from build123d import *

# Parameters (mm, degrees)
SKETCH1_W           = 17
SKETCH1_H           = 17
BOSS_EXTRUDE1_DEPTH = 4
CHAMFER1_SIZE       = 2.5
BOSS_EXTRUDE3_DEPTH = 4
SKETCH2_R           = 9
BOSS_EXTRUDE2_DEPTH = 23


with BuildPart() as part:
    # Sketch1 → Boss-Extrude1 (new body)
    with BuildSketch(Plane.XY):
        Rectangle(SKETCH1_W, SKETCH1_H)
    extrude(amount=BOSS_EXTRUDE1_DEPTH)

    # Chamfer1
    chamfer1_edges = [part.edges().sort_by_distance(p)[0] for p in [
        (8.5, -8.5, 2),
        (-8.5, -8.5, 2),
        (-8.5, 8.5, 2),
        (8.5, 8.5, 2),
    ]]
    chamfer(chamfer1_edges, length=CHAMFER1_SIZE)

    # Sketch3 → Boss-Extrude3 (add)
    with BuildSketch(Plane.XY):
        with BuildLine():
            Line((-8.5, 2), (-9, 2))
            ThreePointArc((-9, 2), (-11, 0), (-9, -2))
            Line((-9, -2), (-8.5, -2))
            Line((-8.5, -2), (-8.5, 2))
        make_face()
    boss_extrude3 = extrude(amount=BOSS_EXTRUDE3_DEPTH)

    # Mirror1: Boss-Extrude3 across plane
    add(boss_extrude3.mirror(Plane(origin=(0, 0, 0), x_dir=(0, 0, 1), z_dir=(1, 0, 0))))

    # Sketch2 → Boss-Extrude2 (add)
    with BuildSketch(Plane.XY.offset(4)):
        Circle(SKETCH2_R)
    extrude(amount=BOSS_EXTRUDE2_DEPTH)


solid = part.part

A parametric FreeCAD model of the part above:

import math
import FreeCAD as App
import Part
import Sketcher
from FreeCAD import Vector
Q = App.Units.Quantity


def edges_at(feature, points):
    """Names of the edges that pass closest to the given points."""
    edges = feature.Shape.Edges
    near = lambda p: min(range(len(edges)), key=lambda i: edges[i].distToShape(Part.Vertex(*p))[0])
    return sorted({f"Edge{near(p) + 1}" for p in points})

doc = App.newDocument("Part")
params = doc.addObject("Spreadsheet::Sheet", "Params")
for row, (alias, value) in enumerate([
    ("sketch1_width", "17 mm"),
    ("pad1_length", "4 mm"),
    ("chamfer_size", "2.5 mm"),
    ("sketch2_radius", "2 mm"),
    ("sketch2_width", "0.5 mm"),
    ("pad2_length", "4 mm"),
    ("sketch3_diameter", "18 mm"),
    ("pad3_length", "23 mm"),
], start=1):
    params.set(f"A{row}", alias)
    params.set(f"B{row}", "=" + value)
    params.setAlias(f"B{row}", alias)

body = doc.addObject("PartDesign::Body", "Body")

sketch1 = doc.addObject("Sketcher::SketchObject", "Sketch")
body.addObject(sketch1)
sketch1.AttachmentSupport = (doc.XY_Plane, [""])
sketch1.MapMode = "FlatFace"
sketch1.addGeometry(Part.LineSegment(Vector(-8, 8, 0), Vector(-8, -8, 0)), False)
sketch1.addGeometry(Part.LineSegment(Vector(-8, -8, 0), Vector(8, -8, 0)), False)
sketch1.addGeometry(Part.LineSegment(Vector(8, -8, 0), Vector(8, 8, 0)), False)
sketch1.addGeometry(Part.LineSegment(Vector(8, 8, 0), Vector(-8, 8, 0)), False)
sketch1.addConstraint(Sketcher.Constraint("Coincident", 0, 2, 1, 1))
sketch1.addConstraint(Sketcher.Constraint("Coincident", 1, 2, 2, 1))
sketch1.addConstraint(Sketcher.Constraint("Coincident", 2, 2, 3, 1))
sketch1.addConstraint(Sketcher.Constraint("Coincident", 3, 2, 0, 1))
sketch1.addConstraint(Sketcher.Constraint("Vertical", 0))
sketch1.addConstraint(Sketcher.Constraint("Horizontal", 1))
sketch1.addConstraint(Sketcher.Constraint("Vertical", 2))
sketch1.addConstraint(Sketcher.Constraint("Horizontal", 3))
sketch1.addConstraint(Sketcher.Constraint("Symmetric", 0, 2, 2, 2, -1, 1))
sketch1.addConstraint(Sketcher.Constraint("Equal", 3, 0))
sketch1.addConstraint(Sketcher.Constraint("DistanceX", 1, 1, 1, 2, Q("17 mm")))
sketch1.setExpression("Constraints[10]", "Params.sketch1_width")
pad1 = doc.addObject("PartDesign::Pad", "Pad")
body.addObject(pad1)
pad1.Profile = sketch1
pad1.setExpression("Length", "Params.pad1_length")
doc.recompute()

chamfer = doc.addObject("PartDesign::Chamfer", "Chamfer")
body.addObject(chamfer)
chamfer.Base = (pad1, edges_at(pad1, [
    (8.5, -8.5, 2),
    (-8.5, -8.5, 2),
    (-8.5, 8.5, 2),
    (8.5, 8.5, 2),
]))
chamfer.setExpression("Size", "Params.chamfer_size")

sketch2 = doc.addObject("Sketcher::SketchObject", "Sketch001")
body.addObject(sketch2)
sketch2.AttachmentSupport = (doc.XY_Plane, [""])
sketch2.MapMode = "FlatFace"
sketch2.addGeometry(Part.LineSegment(Vector(-8.5, 2, 0), Vector(-9, 2, 0)), False)
sketch2.addGeometry(Part.ArcOfCircle(Part.Circle(Vector(-9, 0, 0), Vector(0, 0, 1), 2), math.radians(90), math.radians(270)), False)
sketch2.addGeometry(Part.LineSegment(Vector(-9, -2, 0), Vector(-8.5, -2, 0)), False)
sketch2.addGeometry(Part.LineSegment(Vector(-8.5, -2, 0), Vector(-8.5, 2, 0)), False)
sketch2.addConstraint(Sketcher.Constraint("Tangent", 0, 2, 1, 1))
sketch2.addConstraint(Sketcher.Constraint("Tangent", 1, 2, 2, 1))
sketch2.addConstraint(Sketcher.Constraint("Coincident", 2, 2, 3, 1))
sketch2.addConstraint(Sketcher.Constraint("Coincident", 3, 2, 0, 1))
sketch2.addConstraint(Sketcher.Constraint("Horizontal", 0))
sketch2.addConstraint(Sketcher.Constraint("Horizontal", 2))
sketch2.addConstraint(Sketcher.Constraint("Vertical", 3))
sketch2.addConstraint(Sketcher.Constraint("PointOnObject", 1, 3, -1))
sketch2.addConstraint(Sketcher.Constraint("Radius", 1, Q("2 mm")))
sketch2.addConstraint(Sketcher.Constraint("DistanceX", 0, 2, 0, 1, Q("0.5 mm")))
sketch2.addConstraint(Sketcher.Constraint("DistanceX", 1, 3, -1, 1, Q("9 mm")))
sketch2.setExpression("Constraints[8]", "Params.sketch2_radius")
sketch2.setExpression("Constraints[9]", "Params.sketch2_width")
pad2 = doc.addObject("PartDesign::Pad", "Pad001")
body.addObject(pad2)
pad2.Profile = sketch2
pad2.setExpression("Length", "Params.pad2_length")
doc.recompute()

mirrored = doc.addObject("PartDesign::Mirrored", "Mirrored")
body.addObject(mirrored)
mirrored.Originals = [pad2]
mirrored.MirrorPlane = (doc.YZ_Plane, [""])
body.Tip = mirrored

sketch3 = doc.addObject("Sketcher::SketchObject", "Sketch002")
body.addObject(sketch3)
sketch3.AttachmentSupport = (doc.XY_Plane, [""])
sketch3.MapMode = "FlatFace"
sketch3.AttachmentOffset = App.Placement(Vector(0, 0, 4), App.Rotation())
sketch3.addGeometry(Part.Circle(Vector(0, 0, 0), Vector(0, 0, 1), 9), False)
sketch3.addConstraint(Sketcher.Constraint("Coincident", 0, 3, -1, 1))
sketch3.addConstraint(Sketcher.Constraint("Diameter", 0, Q("18 mm")))
sketch3.setExpression("Constraints[1]", "Params.sketch3_diameter")
pad3 = doc.addObject("PartDesign::Pad", "Pad002")
body.addObject(pad3)
pad3.Profile = sketch3
pad3.setExpression("Length", "Params.pad3_length")

doc.recompute()
